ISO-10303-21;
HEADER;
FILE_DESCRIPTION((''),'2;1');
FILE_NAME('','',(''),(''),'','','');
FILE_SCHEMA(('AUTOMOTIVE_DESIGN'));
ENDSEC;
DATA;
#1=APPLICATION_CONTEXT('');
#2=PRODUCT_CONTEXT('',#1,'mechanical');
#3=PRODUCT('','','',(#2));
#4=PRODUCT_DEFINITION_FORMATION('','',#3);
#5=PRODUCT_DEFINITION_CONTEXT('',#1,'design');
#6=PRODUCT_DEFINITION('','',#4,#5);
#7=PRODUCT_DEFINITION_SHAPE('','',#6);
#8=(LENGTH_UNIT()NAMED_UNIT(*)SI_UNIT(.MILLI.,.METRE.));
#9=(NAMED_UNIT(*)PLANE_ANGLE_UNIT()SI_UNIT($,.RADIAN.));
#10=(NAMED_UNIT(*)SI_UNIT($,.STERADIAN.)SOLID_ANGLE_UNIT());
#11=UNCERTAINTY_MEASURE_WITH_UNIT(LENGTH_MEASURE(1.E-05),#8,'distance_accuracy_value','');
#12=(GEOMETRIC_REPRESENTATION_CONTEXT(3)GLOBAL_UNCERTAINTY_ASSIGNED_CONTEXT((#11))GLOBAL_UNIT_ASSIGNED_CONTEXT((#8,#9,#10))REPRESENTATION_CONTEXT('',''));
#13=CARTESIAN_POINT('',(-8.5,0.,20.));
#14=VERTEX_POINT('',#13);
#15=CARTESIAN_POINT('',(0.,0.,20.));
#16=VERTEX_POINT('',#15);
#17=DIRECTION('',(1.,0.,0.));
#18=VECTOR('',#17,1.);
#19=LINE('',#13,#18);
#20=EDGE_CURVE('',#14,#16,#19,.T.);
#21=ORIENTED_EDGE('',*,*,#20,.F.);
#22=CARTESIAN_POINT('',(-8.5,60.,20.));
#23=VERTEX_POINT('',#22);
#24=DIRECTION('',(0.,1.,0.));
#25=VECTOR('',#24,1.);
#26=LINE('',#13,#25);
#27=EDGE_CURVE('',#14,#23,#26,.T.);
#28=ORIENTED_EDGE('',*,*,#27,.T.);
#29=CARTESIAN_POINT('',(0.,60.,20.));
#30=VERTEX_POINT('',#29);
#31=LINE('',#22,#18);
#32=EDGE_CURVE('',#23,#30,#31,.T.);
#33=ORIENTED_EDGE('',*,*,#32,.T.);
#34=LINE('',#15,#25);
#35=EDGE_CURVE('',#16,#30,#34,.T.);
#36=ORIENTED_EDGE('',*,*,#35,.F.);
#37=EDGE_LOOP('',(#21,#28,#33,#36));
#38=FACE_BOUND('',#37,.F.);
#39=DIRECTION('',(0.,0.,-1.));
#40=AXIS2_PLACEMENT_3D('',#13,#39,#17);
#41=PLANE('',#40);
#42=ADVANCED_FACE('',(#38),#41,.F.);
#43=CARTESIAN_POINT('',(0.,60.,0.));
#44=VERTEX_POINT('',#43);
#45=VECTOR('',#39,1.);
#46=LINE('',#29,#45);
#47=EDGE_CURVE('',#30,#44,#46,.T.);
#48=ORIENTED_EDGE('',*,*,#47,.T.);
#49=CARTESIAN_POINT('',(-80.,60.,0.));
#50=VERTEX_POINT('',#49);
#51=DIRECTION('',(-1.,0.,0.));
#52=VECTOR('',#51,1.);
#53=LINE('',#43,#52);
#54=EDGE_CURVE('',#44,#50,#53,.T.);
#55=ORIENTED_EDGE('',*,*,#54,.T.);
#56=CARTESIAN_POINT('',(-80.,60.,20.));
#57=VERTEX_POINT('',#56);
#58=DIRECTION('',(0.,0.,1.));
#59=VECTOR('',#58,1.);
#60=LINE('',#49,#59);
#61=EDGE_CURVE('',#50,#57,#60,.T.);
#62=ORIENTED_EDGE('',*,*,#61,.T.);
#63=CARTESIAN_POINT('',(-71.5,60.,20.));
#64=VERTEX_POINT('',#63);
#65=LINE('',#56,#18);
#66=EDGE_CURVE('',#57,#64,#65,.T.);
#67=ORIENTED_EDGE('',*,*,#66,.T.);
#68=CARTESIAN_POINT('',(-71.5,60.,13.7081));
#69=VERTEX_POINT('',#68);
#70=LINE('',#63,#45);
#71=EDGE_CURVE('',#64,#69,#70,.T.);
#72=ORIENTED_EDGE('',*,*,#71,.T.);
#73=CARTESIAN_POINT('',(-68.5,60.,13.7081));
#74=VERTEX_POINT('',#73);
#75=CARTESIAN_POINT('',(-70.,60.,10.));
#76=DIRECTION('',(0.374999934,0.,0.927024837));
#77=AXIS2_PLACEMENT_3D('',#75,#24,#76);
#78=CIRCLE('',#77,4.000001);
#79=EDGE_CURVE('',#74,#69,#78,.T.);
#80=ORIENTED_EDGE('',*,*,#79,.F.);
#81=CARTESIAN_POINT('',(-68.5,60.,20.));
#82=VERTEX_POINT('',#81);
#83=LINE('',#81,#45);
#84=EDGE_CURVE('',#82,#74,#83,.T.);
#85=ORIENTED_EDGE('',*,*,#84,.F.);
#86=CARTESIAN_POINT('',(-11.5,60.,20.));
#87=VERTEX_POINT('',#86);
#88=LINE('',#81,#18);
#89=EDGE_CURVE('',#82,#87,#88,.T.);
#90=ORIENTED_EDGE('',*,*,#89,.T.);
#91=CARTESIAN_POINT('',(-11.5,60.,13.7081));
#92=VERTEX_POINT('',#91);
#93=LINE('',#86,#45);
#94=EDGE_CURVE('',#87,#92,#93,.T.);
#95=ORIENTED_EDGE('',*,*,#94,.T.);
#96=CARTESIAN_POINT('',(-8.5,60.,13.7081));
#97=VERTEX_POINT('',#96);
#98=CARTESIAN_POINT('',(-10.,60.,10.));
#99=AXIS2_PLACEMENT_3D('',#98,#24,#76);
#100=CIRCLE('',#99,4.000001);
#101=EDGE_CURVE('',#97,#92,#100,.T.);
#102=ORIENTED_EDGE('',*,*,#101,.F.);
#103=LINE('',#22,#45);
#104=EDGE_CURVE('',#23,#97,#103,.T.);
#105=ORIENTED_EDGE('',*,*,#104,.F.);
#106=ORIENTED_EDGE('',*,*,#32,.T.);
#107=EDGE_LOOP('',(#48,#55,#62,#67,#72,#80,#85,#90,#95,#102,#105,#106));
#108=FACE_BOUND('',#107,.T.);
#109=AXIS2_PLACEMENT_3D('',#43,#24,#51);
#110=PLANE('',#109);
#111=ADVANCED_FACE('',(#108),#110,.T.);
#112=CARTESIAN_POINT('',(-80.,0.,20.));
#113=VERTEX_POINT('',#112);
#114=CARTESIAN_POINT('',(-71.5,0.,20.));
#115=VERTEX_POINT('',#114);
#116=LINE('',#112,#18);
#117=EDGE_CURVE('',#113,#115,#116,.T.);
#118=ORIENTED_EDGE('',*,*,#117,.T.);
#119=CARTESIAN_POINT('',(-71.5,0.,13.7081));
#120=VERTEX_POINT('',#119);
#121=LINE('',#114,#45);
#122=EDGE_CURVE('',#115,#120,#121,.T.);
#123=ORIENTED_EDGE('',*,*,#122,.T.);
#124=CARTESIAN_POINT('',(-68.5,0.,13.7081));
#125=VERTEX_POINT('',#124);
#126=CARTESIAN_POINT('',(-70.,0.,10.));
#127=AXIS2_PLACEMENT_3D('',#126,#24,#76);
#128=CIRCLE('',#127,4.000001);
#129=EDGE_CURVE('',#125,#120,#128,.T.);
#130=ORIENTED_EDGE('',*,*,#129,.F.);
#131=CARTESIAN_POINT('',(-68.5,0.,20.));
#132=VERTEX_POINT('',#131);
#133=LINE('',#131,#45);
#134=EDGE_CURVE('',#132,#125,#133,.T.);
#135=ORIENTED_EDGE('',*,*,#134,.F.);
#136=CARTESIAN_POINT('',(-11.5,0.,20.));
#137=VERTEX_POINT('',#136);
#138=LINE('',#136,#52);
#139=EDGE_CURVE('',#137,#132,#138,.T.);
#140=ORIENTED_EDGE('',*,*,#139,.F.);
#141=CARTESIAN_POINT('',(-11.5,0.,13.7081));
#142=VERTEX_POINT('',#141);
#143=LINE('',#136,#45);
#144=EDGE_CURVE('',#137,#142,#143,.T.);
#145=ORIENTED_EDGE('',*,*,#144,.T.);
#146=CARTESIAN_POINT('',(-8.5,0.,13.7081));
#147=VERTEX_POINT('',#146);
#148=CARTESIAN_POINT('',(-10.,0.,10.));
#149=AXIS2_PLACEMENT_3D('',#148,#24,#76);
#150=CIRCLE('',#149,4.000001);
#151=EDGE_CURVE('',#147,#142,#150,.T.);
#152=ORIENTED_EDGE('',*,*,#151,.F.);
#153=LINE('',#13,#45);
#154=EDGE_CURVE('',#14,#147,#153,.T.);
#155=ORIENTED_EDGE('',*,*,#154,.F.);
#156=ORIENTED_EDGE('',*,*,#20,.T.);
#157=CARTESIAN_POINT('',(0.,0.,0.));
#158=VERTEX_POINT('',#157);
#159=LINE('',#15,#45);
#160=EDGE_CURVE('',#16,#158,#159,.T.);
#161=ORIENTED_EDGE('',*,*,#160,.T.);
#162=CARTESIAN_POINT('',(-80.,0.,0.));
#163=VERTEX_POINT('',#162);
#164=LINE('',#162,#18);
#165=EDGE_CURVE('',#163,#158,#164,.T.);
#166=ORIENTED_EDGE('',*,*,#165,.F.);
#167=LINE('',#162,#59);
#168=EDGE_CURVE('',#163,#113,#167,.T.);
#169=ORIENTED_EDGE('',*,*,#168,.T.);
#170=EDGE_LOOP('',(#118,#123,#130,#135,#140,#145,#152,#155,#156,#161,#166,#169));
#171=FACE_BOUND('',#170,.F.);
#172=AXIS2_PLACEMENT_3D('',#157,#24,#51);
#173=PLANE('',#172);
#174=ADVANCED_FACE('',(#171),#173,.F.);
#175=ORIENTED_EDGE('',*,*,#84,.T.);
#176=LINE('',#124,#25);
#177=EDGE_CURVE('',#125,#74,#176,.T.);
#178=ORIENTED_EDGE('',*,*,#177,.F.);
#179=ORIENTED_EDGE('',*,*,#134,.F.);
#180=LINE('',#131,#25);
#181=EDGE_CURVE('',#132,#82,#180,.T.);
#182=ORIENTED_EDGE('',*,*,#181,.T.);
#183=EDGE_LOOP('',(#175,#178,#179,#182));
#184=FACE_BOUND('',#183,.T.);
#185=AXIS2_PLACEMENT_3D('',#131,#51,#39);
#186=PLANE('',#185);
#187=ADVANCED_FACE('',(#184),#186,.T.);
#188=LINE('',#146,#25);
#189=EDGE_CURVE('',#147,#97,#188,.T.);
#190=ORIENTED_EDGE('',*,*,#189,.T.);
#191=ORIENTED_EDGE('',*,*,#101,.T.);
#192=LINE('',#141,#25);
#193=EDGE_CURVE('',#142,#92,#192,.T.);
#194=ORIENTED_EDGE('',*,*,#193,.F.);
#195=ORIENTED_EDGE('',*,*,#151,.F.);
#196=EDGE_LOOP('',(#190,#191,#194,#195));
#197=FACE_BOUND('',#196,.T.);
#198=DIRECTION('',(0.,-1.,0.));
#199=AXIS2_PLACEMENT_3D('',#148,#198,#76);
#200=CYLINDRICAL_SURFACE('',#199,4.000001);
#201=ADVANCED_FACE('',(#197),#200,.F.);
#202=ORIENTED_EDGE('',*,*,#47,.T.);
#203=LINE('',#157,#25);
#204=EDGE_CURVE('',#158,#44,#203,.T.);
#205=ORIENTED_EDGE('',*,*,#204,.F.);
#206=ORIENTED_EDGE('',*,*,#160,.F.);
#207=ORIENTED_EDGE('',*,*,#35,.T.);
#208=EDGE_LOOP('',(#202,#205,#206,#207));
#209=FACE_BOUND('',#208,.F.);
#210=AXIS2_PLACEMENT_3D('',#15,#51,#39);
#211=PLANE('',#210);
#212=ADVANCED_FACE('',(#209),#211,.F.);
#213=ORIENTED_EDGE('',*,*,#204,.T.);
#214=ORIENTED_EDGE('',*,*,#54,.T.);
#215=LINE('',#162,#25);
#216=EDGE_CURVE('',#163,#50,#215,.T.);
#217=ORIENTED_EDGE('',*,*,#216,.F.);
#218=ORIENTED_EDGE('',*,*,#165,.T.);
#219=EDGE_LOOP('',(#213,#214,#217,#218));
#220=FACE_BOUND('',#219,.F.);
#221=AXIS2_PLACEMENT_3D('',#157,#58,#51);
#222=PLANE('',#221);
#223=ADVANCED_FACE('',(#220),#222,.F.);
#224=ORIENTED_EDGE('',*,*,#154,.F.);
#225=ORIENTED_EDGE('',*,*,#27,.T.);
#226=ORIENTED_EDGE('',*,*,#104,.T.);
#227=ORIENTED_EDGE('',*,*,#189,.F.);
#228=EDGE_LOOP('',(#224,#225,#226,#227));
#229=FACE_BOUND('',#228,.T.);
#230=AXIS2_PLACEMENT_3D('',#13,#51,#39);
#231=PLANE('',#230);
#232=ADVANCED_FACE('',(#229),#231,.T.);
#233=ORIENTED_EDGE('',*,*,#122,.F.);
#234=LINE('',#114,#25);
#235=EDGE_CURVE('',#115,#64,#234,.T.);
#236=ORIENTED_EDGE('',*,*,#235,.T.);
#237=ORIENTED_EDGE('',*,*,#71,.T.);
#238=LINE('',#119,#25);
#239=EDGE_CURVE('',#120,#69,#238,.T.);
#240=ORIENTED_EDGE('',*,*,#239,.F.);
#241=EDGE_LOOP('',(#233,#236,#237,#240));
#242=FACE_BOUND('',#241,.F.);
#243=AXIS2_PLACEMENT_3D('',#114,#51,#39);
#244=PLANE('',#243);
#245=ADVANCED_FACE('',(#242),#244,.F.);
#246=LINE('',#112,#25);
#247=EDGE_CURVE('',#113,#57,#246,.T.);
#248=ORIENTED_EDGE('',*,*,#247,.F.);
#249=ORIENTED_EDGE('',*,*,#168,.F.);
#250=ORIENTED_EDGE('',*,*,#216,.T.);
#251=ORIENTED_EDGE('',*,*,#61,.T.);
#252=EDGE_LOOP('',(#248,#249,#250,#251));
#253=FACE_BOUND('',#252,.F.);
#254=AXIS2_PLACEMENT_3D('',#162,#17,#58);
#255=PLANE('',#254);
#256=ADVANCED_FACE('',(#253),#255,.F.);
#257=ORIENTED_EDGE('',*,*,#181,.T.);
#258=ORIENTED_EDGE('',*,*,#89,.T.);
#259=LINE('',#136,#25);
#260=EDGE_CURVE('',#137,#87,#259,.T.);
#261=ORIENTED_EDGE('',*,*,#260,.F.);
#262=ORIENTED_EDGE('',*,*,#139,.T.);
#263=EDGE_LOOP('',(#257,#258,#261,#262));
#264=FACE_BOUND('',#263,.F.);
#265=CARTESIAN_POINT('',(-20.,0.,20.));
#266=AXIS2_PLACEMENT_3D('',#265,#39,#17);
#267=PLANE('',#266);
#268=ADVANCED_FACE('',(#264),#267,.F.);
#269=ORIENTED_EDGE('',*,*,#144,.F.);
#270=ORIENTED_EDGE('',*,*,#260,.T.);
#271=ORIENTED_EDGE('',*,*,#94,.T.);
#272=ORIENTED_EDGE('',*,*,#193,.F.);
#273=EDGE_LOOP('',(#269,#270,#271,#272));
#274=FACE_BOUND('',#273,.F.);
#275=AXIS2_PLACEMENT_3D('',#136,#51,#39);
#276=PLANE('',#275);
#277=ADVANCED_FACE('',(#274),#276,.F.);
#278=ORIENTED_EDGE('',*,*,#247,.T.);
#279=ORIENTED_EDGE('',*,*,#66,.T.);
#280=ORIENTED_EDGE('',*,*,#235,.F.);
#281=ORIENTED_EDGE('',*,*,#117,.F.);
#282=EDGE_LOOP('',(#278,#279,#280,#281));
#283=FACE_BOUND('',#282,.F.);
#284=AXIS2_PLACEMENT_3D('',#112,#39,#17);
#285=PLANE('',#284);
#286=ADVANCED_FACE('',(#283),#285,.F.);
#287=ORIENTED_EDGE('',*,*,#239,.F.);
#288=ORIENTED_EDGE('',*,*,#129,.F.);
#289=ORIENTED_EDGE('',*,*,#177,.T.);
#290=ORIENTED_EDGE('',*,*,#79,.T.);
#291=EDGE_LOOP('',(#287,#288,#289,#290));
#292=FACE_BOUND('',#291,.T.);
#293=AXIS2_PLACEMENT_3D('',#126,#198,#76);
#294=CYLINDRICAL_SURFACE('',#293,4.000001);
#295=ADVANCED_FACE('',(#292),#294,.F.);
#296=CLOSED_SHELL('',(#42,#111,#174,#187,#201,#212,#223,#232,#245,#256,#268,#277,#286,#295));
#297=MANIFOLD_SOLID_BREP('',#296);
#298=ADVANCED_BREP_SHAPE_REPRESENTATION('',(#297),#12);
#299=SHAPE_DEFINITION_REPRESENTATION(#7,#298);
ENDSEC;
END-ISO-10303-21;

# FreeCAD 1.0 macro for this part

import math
import FreeCAD as App
import Part
import Sketcher

V = App.Vector
Q = App.Units.Quantity

doc = App.newDocument("Part")
params = doc.addObject("Spreadsheet::Sheet", "Params")
for row, (alias, value) in enumerate([
    ("sketch1_radius", "4 mm"),
    ("sketch1_width", "80 mm"),
    ("sketch1_height", "20 mm"),
    ("sketch1_width2", "1.5 mm"),
    ("pad1_length", "60 mm"),
], start=1):
    params.set(f"A{row}", alias)
    params.set(f"B{row}", "=" + value)
    params.setAlias(f"B{row}", alias)

body = doc.addObject("PartDesign::Body", "Body")

# Sketch on XZ plane
sketch1 = body.newObject("Sketcher::SketchObject", "Sketch")
sketch1.AttachmentSupport = (doc.getObject("XZ_Plane"), [""])
sketch1.MapMode = "FlatFace"
sketch1.addGeometry(Part.ArcOfCircle(Part.Circle(V(-10, 10, 0), V(0, 0, 1), 4), math.radians(112), math.radians(428)), False)
sketch1.addGeometry(Part.LineSegment(V(-8.5, 13.7, 0), V(-8.5, 20, 0)), False)
sketch1.addGeometry(Part.LineSegment(V(-8.5, 20, 0), V(0, 20, 0)), False)
sketch1.addGeometry(Part.LineSegment(V(0, 20, 0), V(0, 0, 0)), False)
sketch1.addGeometry(Part.LineSegment(V(0, 0, 0), V(-80, 0, 0)), False)
sketch1.addGeometry(Part.LineSegment(V(-80, 0, 0), V(-80, 20, 0)), False)
sketch1.addGeometry(Part.LineSegment(V(-80, 20, 0), V(-71.5, 20, 0)), False)
sketch1.addGeometry(Part.LineSegment(V(-71.5, 20, 0), V(-71.5, 13.7, 0)), False)
sketch1.addGeometry(Part.ArcOfCircle(Part.Circle(V(-70, 10, 0), V(0, 0, 1), 4), math.radians(112), math.radians(428)), False)
sketch1.addGeometry(Part.LineSegment(V(-68.5, 13.7, 0), V(-68.5, 20, 0)), False)
sketch1.addGeometry(Part.LineSegment(V(-68.5, 20, 0), V(-11.5, 20, 0)), False)
sketch1.addGeometry(Part.LineSegment(V(-11.5, 20, 0), V(-11.5, 13.7, 0)), False)
sketch1.addConstraint(Sketcher.Constraint("Coincident", 0, 2, 1, 1))
sketch1.addConstraint(Sketcher.Constraint("Coincident", 1, 2, 2, 1))
sketch1.addConstraint(Sketcher.Constraint("Coincident", 2, 2, 3, 1))
sketch1.addConstraint(Sketcher.Constraint("Coincident", 3, 2, 4, 1))
sketch1.addConstraint(Sketcher.Constraint("Coincident", 4, 2, 5, 1))
sketch1.addConstraint(Sketcher.Constraint("Coincident", 5, 2, 6, 1))
sketch1.addConstraint(Sketcher.Constraint("Coincident", 6, 2, 7, 1))
sketch1.addConstraint(Sketcher.Constraint("Coincident", 7, 2, 8, 1))
sketch1.addConstraint(Sketcher.Constraint("Coincident", 8, 2, 9, 1))
sketch1.addConstraint(Sketcher.Constraint("Coincident", 9, 2, 10, 1))
sketch1.addConstraint(Sketcher.Constraint("Coincident", 10, 2, 11, 1))
sketch1.addConstraint(Sketcher.Constraint("Coincident", 11, 2, 0, 1))
sketch1.addConstraint(Sketcher.Constraint("Vertical", 1))
sketch1.addConstraint(Sketcher.Constraint("Horizontal", 2))
sketch1.addConstraint(Sketcher.Constraint("Vertical", 3))
sketch1.addConstraint(Sketcher.Constraint("Horizontal", 4))
sketch1.addConstraint(Sketcher.Constraint("Vertical", 5))
sketch1.addConstraint(Sketcher.Constraint("Horizontal", 6))
sketch1.addConstraint(Sketcher.Constraint("Vertical", 7))
sketch1.addConstraint(Sketcher.Constraint("Vertical", 9))
sketch1.addConstraint(Sketcher.Constraint("Horizontal", 10))
sketch1.addConstraint(Sketcher.Constraint("Vertical", 11))
sketch1.addConstraint(Sketcher.Constraint("Coincident", 3, 2, -1, 1))
sketch1.addConstraint(Sketcher.Constraint("Equal", 0, 8))
sketch1.addConstraint(Sketcher.Constraint("Horizontal", 0, 3, 8, 3))
sketch1.addConstraint(Sketcher.Constraint("Horizontal", 2, 2, 5, 2))
sketch1.addConstraint(Sketcher.Constraint("Horizontal", 0, 2, 7, 2))
sketch1.addConstraint(Sketcher.Constraint("Horizontal", 7, 2, 8, 2))
sketch1.addConstraint(Sketcher.Constraint("Horizontal", 6, 2, 9, 2))
sketch1.addConstraint(Sketcher.Constraint("Horizontal", 8, 2, 11, 2))
sketch1.addConstraint(Sketcher.Constraint("Equal", 2, 6))
sketch1.addConstraint(Sketcher.Constraint("Radius", 0, Q("4 mm")))
sketch1.addConstraint(Sketcher.Constraint("DistanceX", 4, 2, 4, 1, Q("80 mm")))
sketch1.addConstraint(Sketcher.Constraint("DistanceY", 3, 2, 3, 1, Q("20 mm")))
sketch1.addConstraint(Sketcher.Constraint("DistanceX", 0, 3, -1, 1, Q("10 mm")))
sketch1.addConstraint(Sketcher.Constraint("DistanceY", -1, 1, 0, 3, Q("10 mm")))
sketch1.addConstraint(Sketcher.Constraint("DistanceX", 0, 3, 0, 2, Q("1.5 mm")))
sketch1.setExpression("Constraints[31]", "Params.sketch1_radius")
sketch1.setExpression("Constraints[32]", "Params.sketch1_width")
sketch1.setExpression("Constraints[33]", "Params.sketch1_height")
sketch1.setExpression("Constraints[36]", "Params.sketch1_width2")
pad1 = body.newObject("PartDesign::Pad", "Pad")
pad1.Profile = sketch1
pad1.setExpression("Length", "Params.pad1_length")
pad1.Reversed = True

doc.recompute()
